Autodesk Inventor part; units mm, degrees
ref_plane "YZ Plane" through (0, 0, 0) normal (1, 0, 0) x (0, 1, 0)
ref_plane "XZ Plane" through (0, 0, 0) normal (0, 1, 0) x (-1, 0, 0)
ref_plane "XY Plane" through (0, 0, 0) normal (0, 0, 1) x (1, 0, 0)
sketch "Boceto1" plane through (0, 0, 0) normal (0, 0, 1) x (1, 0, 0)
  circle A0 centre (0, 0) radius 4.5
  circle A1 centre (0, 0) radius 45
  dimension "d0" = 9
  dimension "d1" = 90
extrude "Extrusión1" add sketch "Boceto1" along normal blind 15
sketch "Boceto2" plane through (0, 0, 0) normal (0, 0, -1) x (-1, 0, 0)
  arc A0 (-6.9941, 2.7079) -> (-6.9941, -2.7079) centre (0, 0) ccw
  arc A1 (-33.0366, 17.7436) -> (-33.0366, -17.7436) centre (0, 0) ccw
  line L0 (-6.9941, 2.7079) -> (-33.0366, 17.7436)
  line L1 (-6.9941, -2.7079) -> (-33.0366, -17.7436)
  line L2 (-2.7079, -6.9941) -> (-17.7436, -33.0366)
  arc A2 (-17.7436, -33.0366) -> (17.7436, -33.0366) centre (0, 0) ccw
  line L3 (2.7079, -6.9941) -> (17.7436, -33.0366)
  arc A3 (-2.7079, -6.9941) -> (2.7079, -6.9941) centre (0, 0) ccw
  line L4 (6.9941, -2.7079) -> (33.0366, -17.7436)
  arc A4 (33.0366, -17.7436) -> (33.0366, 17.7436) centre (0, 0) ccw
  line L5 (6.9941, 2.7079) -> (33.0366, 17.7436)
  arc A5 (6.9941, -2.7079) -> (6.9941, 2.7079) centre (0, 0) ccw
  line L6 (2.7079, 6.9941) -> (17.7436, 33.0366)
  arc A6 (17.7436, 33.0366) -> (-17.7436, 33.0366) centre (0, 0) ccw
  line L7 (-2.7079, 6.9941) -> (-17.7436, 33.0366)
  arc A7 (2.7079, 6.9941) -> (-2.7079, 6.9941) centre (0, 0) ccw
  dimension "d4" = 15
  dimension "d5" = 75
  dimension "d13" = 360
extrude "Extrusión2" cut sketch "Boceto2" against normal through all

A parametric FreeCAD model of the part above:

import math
import FreeCAD as App
import Part
import Sketcher
from FreeCAD import Vector
Q = App.Units.Quantity

doc = App.newDocument("Part")
params = doc.addObject("Spreadsheet::Sheet", "Params")
for row, (alias, value) in enumerate([
    ("sketch1_diameter", "90 mm"),
    ("sketch1_diameter2", "9 mm"),
    ("pad1_length", "15 mm"),
    ("sketch2_radius", "7.5 mm"),
    ("sketch2_radius2", "37.5 mm"),
], start=1):
    params.set(f"A{row}", alias)
    params.set(f"B{row}", "=" + value)
    params.setAlias(f"B{row}", alias)

body = doc.addObject("PartDesign::Body", "Body")

# Sketch on XY plane
sketch1 = body.newObject("Sketcher::SketchObject", "Sketch")
sketch1.AttachmentSupport = (doc.getObject("XY_Plane"), [""])
sketch1.MapMode = "FlatFace"
sketch1.addGeometry(Part.Circle(Vector(0, 0, 0), Vector(0, 0, 1), 45), False)
sketch1.addGeometry(Part.Circle(Vector(0, 0, 0), Vector(0, 0, 1), 4.5), False)
sketch1.addConstraint(Sketcher.Constraint("Coincident", 0, 3, -1, 1))
sketch1.addConstraint(Sketcher.Constraint("Coincident", 1, 3, -1, 1))
sketch1.addConstraint(Sketcher.Constraint("Diameter", 0, 90.0))
sketch1.addConstraint(Sketcher.Constraint("Diameter", 1, 9.0))
sketch1.setExpression("Constraints[2]", "Params.sketch1_diameter")
sketch1.setExpression("Constraints[3]", "Params.sketch1_diameter2")
pad1 = body.newObject("PartDesign::Pad", "Pad")
pad1.Profile = sketch1
pad1.setExpression("Length", "Params.pad1_length")

# Sketch on XY plane
sketch2 = body.newObject("Sketcher::SketchObject", "Sketch001")
sketch2.AttachmentSupport = (doc.getObject("XY_Plane"), [""])
sketch2.MapMode = "FlatFace"
sketch2.addGeometry(Part.ArcOfCircle(Part.Circle(Vector(0, 0, 0), Vector(0, 0, 1), 7.50001), math.radians(-21.164868), math.radians(21.164868)), False)
sketch2.addGeometry(Part.LineSegment(Vector(6.9941, 2.7079, 0), Vector(33.0366, 17.7436, 0)), False)
sketch2.addGeometry(Part.ArcOfCircle(Part.Circle(Vector(0, 0, 0), Vector(0, 0, 1), 37.50003), math.radians(-28.239764), math.radians(28.239764)), False)
sketch2.addGeometry(Part.LineSegment(Vector(33.0366, -17.7436, 0), Vector(6.9941, -2.7079, 0)), False)
sketch2.addGeometry(Part.ArcOfCircle(Part.Circle(Vector(0, 0, 0), Vector(0, 0, 1), 7.50001), math.radians(-111.164868), math.radians(-68.835132)), False)
sketch2.addGeometry(Part.LineSegment(Vector(2.7079, -6.9941, 0), Vector(17.7436, -33.0366, 0)), False)
sketch2.addGeometry(Part.ArcOfCircle(Part.Circle(Vector(0, 0, 0), Vector(0, 0, 1), 37.50003), math.radians(-118.239764), math.radians(-61.760236)), False)
sketch2.addGeometry(Part.LineSegment(Vector(-17.7436, -33.0366, 0), Vector(-2.7079, -6.9941, 0)), False)
sketch2.addGeometry(Part.ArcOfCircle(Part.Circle(Vector(0, 0, 0), Vector(0, 0, 1), 7.50001), math.radians(158.835132), math.radians(201.164868)), False)
sketch2.addGeometry(Part.LineSegment(Vector(-6.9941, -2.7079, 0), Vector(-33.0366, -17.7436, 0)), False)
sketch2.addGeometry(Part.ArcOfCircle(Part.Circle(Vector(0, 0, 0), Vector(0, 0, 1), 37.50003), math.radians(151.760236), math.radians(208.239764)), False)
sketch2.addGeometry(Part.LineSegment(Vector(-33.0366, 17.7436, 0), Vector(-6.9941, 2.7079, 0)), False)
sketch2.addGeometry(Part.ArcOfCircle(Part.Circle(Vector(0, 0, 0), Vector(0, 0, 1), 7.50001), math.radians(68.835132), math.radians(111.164868)), False)
sketch2.addGeometry(Part.LineSegment(Vector(-2.7079, 6.9941, 0), Vector(-17.7436, 33.0366, 0)), False)
sketch2.addGeometry(Part.ArcOfCircle(Part.Circle(Vector(0, 0, 0), Vector(0, 0, 1), 37.50003), math.radians(61.760236), math.radians(118.239764)), False)
sketch2.addGeometry(Part.LineSegment(Vector(17.7436, 33.0366, 0), Vector(2.7079, 6.9941, 0)), False)
sketch2.addConstraint(Sketcher.Constraint("Coincident", 0, 2, 1, 1))
sketch2.addConstraint(Sketcher.Constraint("Coincident", 1, 2, 2, 2))
sketch2.addConstraint(Sketcher.Constraint("Coincident", 2, 1, 3, 1))
sketch2.addConstraint(Sketcher.Constraint("Coincident", 3, 2, 0, 1))
sketch2.addConstraint(Sketcher.Constraint("Coincident", 4, 2, 5, 1))
sketch2.addConstraint(Sketcher.Constraint("Coincident", 5, 2, 6, 2))
sketch2.addConstraint(Sketcher.Constraint("Coincident", 6, 1, 7, 1))
sketch2.addConstraint(Sketcher.Constraint("Coincident", 7, 2, 4, 1))
sketch2.addConstraint(Sketcher.Constraint("Coincident", 8, 2, 9, 1))
sketch2.addConstraint(Sketcher.Constraint("Coincident", 9, 2, 10, 2))
sketch2.addConstraint(Sketcher.Constraint("Coincident", 10, 1, 11, 1))
sketch2.addConstraint(Sketcher.Constraint("Coincident", 11, 2, 8, 1))
sketch2.addConstraint(Sketcher.Constraint("Coincident", 12, 2, 13, 1))
sketch2.addConstraint(Sketcher.Constraint("Coincident", 13, 2, 14, 2))
sketch2.addConstraint(Sketcher.Constraint("Coincident", 14, 1, 15, 1))
sketch2.addConstraint(Sketcher.Constraint("Coincident", 15, 2, 12, 1))
sketch2.addConstraint(Sketcher.Constraint("Coincident", 0, 3, -1, 1))
sketch2.addConstraint(Sketcher.Constraint("Coincident", 2, 3, -1, 1))
sketch2.addConstraint(Sketcher.Constraint("Coincident", 4, 3, -1, 1))
sketch2.addConstraint(Sketcher.Constraint("Coincident", 6, 3, -1, 1))
sketch2.addConstraint(Sketcher.Constraint("Coincident", 8, 3, -1, 1))
sketch2.addConstraint(Sketcher.Constraint("Coincident", 10, 3, -1, 1))
sketch2.addConstraint(Sketcher.Constraint("Coincident", 12, 3, -1, 1))
sketch2.addConstraint(Sketcher.Constraint("Coincident", 14, 3, -1, 1))
sketch2.addConstraint(Sketcher.Constraint("Equal", 0, 4))
sketch2.addConstraint(Sketcher.Constraint("Equal", 2, 6))
sketch2.addConstraint(Sketcher.Constraint("Equal", 4, 8))
sketch2.addConstraint(Sketcher.Constraint("Equal", 6, 10))
sketch2.addConstraint(Sketcher.Constraint("Equal", 8, 12))
sketch2.addConstraint(Sketcher.Constraint("Equal", 10, 14))
sketch2.addConstraint(Sketcher.Constraint("Perpendicular", 1, 5))
sketch2.addConstraint(Sketcher.Constraint("Perpendicular", 3, 7))
sketch2.addConstraint(Sketcher.Constraint("Perpendicular", 5, 9))
sketch2.addConstraint(Sketcher.Constraint("Perpendicular", 7, 11))
sketch2.addConstraint(Sketcher.Constraint("Perpendicular", 9, 13))
sketch2.addConstraint(Sketcher.Constraint("Perpendicular", 11, 15))
sketch2.addConstraint(Sketcher.Constraint("Horizontal", 5, 2, 6, 1))
sketch2.addConstraint(Sketcher.Constraint("Horizontal", 4, 2, 7, 2))
sketch2.addConstraint(Sketcher.Constraint("Horizontal", 3, 2, 8, 2))
sketch2.addConstraint(Sketcher.Constraint("Horizontal", 1, 2, 10, 1))
sketch2.addConstraint(Sketcher.Constraint("Horizontal", 13, 2, 14, 1))
sketch2.addConstraint(Sketcher.Constraint("Vertical", 1, 2, 2, 1))
sketch2.addConstraint(Sketcher.Constraint("Vertical", 7, 2, 12, 2))
sketch2.addConstraint(Sketcher.Constraint("Equal", 3, 5))
sketch2.addConstraint(Sketcher.Constraint("Radius", 0, 7.5))
sketch2.addConstraint(Sketcher.Constraint("Radius", 2, 37.5))
sketch2.addConstraint(Sketcher.Constraint("Angle", 1, Q("30 deg")))
sketch2.addConstraint(Sketcher.Constraint("DistanceX", -1, 1, 0, 2, 6.994))
sketch2.setExpression("Constraints[44]", "Params.sketch2_radius")
sketch2.setExpression("Constraints[45]", "Params.sketch2_radius2")
pocket1 = body.newObject("PartDesign::Pocket", "Pocket")
pocket1.Profile = sketch2
pocket1.Type = "ThroughAll"
pocket1.Reversed = True

doc.recompute()
